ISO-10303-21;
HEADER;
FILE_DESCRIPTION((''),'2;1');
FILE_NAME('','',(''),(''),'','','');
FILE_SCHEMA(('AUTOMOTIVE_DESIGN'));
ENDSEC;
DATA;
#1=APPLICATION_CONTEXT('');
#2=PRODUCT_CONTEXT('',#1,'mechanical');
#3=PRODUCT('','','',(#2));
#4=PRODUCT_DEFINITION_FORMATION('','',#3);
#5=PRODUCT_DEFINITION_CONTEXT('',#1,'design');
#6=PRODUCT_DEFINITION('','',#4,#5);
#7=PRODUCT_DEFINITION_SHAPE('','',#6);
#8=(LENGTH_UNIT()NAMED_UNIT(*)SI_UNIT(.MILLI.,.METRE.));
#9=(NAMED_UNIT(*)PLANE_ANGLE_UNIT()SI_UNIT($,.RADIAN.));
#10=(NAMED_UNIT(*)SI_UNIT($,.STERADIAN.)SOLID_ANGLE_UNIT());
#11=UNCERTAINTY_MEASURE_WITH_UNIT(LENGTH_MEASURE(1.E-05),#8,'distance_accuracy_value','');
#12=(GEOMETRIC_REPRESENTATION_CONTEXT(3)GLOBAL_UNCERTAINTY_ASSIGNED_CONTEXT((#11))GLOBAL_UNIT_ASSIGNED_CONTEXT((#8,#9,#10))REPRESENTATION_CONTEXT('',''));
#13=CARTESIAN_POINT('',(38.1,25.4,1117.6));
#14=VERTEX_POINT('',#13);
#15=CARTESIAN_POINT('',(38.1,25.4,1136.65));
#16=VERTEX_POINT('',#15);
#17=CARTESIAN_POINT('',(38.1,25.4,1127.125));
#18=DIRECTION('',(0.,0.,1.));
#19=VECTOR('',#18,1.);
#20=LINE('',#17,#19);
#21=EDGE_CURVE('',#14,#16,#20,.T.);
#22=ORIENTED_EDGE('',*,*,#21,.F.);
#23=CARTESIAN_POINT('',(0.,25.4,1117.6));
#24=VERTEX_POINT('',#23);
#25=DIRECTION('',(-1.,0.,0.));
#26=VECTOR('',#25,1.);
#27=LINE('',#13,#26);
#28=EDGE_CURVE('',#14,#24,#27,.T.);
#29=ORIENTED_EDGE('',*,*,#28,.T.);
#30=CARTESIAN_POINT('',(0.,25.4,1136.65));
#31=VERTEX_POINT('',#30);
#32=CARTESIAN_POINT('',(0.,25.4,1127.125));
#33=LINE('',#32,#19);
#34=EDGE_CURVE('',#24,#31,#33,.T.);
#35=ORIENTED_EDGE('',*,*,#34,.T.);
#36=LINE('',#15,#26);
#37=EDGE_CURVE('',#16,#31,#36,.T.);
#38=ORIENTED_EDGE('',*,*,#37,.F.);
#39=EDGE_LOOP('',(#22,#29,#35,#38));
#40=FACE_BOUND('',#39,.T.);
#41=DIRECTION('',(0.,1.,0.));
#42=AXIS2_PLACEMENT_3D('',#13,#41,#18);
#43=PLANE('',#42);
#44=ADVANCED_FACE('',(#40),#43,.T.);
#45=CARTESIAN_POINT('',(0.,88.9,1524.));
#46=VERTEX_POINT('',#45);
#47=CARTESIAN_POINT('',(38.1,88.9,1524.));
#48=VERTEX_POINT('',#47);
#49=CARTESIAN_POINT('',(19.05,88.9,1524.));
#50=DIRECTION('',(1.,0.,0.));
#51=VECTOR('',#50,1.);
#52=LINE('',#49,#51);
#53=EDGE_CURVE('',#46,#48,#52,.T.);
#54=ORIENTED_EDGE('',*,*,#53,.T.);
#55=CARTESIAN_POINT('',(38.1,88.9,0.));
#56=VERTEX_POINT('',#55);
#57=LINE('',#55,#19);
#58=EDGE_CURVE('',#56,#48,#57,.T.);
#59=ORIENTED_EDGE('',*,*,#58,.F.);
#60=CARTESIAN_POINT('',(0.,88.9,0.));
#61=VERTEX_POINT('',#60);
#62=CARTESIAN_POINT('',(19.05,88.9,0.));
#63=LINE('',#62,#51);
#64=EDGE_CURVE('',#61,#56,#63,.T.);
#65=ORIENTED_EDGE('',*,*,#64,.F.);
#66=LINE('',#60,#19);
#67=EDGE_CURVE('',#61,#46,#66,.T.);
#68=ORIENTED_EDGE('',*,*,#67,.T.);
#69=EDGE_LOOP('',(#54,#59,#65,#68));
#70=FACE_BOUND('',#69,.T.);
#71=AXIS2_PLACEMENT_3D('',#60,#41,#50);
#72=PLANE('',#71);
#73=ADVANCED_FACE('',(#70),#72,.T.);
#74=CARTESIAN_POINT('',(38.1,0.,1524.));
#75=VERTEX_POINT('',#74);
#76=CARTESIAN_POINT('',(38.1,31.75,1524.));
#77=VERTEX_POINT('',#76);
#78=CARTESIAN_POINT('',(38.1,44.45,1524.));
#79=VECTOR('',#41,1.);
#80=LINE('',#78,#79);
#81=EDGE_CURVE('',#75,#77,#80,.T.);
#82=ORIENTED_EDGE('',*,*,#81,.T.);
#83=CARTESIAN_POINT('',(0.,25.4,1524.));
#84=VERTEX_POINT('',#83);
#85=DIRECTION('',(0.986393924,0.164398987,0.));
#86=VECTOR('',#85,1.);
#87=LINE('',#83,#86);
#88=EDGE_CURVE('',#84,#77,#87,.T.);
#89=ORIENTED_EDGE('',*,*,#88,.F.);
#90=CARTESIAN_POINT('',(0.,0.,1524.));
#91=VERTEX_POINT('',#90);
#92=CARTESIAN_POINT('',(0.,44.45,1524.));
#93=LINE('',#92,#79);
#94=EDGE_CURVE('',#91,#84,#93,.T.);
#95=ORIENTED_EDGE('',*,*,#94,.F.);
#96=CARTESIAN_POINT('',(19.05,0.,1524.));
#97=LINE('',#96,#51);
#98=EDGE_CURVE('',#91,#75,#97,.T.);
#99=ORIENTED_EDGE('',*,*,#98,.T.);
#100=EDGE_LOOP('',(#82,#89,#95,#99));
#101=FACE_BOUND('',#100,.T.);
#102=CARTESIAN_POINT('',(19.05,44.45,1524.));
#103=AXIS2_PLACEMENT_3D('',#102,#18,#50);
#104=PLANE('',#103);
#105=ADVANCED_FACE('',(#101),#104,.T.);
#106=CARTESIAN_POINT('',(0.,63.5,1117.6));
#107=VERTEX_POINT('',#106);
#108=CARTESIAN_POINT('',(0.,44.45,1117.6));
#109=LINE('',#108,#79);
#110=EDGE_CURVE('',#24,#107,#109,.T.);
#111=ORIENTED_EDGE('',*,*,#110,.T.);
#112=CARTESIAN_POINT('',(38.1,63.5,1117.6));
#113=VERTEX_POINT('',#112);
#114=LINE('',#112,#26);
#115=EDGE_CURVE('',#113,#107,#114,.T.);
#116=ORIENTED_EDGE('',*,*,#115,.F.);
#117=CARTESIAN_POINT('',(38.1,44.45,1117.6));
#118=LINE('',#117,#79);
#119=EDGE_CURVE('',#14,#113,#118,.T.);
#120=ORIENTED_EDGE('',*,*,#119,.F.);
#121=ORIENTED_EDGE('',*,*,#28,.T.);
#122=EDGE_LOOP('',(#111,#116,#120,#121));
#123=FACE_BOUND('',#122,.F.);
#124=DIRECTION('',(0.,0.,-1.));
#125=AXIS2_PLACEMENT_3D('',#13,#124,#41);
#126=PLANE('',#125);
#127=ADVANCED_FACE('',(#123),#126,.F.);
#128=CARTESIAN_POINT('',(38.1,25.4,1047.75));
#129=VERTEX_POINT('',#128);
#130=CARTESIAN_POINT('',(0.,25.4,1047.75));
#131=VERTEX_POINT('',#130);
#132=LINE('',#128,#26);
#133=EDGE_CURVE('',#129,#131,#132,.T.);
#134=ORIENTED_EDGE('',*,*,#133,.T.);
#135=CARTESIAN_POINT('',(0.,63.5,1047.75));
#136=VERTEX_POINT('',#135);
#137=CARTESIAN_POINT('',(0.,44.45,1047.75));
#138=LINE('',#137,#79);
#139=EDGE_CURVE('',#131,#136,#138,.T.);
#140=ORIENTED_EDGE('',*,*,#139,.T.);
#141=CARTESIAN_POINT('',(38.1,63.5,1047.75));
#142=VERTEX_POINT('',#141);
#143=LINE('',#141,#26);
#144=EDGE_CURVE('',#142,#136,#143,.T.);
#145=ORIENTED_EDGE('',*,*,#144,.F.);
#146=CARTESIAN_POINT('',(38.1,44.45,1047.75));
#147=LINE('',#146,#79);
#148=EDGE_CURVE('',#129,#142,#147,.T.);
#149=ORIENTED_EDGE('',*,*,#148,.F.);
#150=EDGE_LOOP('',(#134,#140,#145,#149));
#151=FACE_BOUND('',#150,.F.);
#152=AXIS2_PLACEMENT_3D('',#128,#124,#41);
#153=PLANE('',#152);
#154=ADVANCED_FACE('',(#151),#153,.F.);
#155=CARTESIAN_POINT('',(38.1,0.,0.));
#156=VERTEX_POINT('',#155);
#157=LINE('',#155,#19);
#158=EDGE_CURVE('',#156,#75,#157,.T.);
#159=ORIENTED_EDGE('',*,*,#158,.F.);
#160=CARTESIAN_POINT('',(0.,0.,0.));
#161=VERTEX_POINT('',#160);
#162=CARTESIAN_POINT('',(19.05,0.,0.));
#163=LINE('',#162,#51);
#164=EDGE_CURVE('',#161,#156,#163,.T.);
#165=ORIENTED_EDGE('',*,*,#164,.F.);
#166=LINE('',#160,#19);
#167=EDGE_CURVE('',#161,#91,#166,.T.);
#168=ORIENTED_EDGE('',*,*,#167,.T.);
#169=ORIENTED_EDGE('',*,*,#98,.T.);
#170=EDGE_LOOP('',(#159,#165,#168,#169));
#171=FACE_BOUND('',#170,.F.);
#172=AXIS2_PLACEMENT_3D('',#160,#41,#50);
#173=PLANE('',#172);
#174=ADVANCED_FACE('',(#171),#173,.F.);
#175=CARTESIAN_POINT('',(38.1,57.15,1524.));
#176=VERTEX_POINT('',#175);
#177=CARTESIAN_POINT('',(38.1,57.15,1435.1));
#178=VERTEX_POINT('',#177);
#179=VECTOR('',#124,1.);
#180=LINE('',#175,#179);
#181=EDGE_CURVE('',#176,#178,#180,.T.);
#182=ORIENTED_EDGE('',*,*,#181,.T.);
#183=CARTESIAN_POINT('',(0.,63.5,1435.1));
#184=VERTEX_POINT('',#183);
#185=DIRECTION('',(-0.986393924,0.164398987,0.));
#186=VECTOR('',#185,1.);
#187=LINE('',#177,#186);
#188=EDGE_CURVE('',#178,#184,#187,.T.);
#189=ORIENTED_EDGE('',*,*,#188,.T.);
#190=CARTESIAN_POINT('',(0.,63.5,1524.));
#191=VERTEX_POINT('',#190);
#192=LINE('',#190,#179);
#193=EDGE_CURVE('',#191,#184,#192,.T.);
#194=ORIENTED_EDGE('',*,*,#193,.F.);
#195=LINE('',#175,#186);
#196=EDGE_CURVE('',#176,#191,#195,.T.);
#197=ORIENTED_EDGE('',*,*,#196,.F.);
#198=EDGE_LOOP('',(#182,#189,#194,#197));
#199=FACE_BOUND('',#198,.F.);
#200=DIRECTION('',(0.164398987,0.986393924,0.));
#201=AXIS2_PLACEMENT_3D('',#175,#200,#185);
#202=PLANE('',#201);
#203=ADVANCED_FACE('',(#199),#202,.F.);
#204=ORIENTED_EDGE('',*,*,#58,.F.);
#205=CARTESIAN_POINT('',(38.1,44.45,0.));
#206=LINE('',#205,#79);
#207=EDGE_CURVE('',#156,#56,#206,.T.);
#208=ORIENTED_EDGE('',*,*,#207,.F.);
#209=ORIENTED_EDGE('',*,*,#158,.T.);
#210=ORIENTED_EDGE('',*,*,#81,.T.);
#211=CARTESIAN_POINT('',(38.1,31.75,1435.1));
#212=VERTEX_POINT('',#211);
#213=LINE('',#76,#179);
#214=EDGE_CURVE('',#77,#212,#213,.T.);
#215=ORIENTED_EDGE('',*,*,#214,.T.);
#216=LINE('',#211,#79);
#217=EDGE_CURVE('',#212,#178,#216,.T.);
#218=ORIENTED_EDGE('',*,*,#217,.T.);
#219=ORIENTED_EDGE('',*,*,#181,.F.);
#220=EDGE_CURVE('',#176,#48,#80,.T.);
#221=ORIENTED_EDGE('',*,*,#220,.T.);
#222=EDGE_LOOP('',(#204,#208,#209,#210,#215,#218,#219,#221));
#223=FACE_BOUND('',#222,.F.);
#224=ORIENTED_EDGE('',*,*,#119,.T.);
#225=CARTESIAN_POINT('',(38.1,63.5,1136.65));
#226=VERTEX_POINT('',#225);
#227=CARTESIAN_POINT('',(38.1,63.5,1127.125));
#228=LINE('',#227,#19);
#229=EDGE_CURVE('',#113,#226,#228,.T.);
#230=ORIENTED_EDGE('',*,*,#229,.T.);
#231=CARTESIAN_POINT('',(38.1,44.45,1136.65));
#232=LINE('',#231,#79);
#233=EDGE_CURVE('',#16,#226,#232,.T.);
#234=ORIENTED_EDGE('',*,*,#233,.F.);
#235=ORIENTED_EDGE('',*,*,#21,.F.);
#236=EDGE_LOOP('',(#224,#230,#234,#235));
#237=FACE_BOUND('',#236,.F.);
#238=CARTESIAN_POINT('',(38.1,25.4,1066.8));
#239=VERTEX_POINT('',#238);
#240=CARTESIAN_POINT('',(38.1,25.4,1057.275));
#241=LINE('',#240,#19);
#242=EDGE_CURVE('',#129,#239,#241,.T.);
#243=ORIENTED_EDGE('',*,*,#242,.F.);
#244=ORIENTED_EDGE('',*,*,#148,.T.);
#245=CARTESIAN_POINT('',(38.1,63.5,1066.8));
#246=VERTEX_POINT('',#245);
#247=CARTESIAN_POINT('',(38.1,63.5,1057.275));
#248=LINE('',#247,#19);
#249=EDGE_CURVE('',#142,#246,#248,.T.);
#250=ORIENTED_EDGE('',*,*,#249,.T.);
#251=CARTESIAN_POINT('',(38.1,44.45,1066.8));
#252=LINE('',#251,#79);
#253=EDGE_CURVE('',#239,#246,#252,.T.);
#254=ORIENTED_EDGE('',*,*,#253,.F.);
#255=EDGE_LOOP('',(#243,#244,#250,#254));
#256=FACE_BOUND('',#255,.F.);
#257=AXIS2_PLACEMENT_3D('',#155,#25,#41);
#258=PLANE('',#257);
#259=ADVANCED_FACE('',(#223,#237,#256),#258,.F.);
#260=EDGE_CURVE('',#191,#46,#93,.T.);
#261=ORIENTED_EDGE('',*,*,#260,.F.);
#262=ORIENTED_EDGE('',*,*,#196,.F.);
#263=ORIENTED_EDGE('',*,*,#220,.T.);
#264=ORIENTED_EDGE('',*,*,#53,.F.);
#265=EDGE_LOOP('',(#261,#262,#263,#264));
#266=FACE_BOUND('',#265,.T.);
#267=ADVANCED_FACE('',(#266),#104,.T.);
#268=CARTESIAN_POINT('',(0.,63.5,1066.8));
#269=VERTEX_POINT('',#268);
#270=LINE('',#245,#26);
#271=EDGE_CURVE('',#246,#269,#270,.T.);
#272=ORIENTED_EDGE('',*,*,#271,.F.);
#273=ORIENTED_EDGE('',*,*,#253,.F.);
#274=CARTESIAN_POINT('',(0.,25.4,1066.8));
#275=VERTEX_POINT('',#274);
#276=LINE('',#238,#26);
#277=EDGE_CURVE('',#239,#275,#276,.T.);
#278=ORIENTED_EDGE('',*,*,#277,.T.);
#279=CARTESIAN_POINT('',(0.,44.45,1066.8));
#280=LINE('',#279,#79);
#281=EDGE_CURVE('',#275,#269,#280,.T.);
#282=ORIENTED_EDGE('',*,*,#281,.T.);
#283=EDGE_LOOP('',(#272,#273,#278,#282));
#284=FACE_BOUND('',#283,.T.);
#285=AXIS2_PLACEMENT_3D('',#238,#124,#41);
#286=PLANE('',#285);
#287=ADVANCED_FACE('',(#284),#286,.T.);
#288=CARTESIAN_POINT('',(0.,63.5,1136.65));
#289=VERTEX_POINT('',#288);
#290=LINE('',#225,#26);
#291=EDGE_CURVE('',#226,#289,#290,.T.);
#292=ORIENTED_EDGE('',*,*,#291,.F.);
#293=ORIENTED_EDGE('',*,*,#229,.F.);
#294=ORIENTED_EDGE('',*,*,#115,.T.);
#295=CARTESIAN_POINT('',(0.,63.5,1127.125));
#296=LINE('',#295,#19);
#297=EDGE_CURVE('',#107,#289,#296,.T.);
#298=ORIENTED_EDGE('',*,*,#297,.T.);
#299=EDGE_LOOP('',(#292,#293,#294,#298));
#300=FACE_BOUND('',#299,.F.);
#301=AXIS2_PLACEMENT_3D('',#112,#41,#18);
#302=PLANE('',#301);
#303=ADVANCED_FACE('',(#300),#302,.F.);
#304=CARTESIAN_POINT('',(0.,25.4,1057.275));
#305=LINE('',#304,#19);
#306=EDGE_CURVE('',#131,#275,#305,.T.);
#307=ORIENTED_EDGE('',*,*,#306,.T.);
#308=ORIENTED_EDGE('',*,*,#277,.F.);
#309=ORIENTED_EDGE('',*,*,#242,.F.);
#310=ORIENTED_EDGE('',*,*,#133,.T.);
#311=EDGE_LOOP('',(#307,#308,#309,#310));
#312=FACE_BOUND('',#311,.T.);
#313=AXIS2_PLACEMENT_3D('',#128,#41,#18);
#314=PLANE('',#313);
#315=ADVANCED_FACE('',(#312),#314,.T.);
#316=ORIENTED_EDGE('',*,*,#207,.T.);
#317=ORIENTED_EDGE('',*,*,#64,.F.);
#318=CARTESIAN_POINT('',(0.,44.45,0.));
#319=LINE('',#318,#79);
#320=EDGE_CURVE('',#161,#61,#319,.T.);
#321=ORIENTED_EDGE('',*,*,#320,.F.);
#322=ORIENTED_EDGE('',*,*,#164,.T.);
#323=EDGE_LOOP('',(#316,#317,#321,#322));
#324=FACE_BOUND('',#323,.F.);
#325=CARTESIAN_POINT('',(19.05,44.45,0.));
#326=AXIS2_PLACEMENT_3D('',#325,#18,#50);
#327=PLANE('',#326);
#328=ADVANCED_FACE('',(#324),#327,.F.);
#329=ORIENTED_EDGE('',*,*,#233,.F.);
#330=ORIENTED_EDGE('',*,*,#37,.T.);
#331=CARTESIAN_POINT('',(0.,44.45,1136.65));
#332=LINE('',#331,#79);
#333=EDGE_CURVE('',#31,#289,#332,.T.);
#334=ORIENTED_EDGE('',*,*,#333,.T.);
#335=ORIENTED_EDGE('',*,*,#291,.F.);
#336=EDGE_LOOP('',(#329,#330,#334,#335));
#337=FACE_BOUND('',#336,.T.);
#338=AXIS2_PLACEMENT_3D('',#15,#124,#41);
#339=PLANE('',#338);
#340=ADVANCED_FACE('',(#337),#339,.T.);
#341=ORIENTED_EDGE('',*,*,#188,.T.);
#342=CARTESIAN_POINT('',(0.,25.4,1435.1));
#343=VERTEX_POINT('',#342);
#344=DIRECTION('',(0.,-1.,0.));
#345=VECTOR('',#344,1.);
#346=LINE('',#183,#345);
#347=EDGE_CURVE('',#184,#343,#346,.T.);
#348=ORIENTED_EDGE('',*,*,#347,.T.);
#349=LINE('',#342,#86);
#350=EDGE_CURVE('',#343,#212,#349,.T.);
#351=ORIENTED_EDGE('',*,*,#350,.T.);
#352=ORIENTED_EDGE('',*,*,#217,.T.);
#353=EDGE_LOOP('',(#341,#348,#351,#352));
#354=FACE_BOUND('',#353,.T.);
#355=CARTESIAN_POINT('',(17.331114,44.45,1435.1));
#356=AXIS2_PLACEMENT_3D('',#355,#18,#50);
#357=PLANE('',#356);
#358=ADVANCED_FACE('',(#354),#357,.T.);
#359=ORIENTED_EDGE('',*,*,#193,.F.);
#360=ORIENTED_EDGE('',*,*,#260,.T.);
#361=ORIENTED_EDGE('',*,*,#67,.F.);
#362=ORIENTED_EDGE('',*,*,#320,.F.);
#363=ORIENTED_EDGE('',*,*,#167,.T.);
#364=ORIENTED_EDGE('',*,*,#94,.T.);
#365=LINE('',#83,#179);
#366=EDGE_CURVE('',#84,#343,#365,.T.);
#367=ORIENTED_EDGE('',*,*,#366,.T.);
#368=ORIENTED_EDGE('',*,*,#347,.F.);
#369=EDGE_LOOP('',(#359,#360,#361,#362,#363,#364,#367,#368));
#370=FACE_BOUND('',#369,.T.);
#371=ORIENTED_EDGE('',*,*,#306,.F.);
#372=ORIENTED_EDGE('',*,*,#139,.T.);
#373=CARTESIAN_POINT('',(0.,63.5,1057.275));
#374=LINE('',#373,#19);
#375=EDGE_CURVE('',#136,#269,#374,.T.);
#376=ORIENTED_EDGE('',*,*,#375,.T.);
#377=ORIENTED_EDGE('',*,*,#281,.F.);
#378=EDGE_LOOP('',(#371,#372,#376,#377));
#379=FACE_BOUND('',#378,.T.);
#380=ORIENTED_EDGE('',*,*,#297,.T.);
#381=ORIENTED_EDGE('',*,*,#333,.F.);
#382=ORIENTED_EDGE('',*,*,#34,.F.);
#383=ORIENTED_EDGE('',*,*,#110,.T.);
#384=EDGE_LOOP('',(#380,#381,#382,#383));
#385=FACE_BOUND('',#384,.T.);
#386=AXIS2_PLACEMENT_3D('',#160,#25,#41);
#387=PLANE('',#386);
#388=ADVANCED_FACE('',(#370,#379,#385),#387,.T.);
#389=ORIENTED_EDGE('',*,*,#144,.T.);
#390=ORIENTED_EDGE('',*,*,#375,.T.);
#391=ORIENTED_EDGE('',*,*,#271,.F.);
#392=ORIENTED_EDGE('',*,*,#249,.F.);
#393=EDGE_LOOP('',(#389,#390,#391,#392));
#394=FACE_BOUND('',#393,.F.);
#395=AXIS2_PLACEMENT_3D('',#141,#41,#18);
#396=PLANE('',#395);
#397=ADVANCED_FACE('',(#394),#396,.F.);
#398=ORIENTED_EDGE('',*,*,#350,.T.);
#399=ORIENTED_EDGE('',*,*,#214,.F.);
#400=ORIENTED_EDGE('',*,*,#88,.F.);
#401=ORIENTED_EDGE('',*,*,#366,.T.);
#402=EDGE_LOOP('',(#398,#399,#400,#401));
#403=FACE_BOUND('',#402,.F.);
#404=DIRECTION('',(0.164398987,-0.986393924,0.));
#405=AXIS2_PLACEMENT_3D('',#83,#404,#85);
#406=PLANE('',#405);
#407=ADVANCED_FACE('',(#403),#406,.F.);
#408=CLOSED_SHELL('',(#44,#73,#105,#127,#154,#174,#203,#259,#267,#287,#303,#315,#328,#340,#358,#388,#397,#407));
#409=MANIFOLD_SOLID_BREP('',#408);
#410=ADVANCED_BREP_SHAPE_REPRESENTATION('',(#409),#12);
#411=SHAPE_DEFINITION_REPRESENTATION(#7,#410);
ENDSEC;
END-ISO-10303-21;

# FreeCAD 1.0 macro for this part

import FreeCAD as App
import Part
import Sketcher
Q = App.Units.Quantity

doc = App.newDocument("Part")
body = doc.addObject("PartDesign::Body", "Body")

sketch1 = doc.addObject("Sketcher::SketchObject", "Sketch")
body.addObject(sketch1)
sketch1.AttachmentSupport = (doc.XY_Plane, [""])
sketch1.MapMode = "FlatFace"
sketch1.addGeometry([
    Part.LineSegment(App.Vector(0, 89, 0), App.Vector(0, 0, 0)),
    Part.LineSegment(App.Vector(0, 0, 0), App.Vector(38, 0, 0)),
    Part.LineSegment(App.Vector(38, 0, 0), App.Vector(38, 89, 0)),
    Part.LineSegment(App.Vector(38, 89, 0), App.Vector(0, 89, 0)),
], False)
sketch1.addConstraint([
    Sketcher.Constraint("Coincident", 0, 2, 1, 1),
    Sketcher.Constraint("Coincident", 1, 2, 2, 1),
    Sketcher.Constraint("Coincident", 2, 2, 3, 1),
    Sketcher.Constraint("Coincident", 3, 2, 0, 1),
    Sketcher.Constraint("Vertical", 0),
    Sketcher.Constraint("Horizontal", 1),
    Sketcher.Constraint("Vertical", 2),
    Sketcher.Constraint("Horizontal", 3),
    Sketcher.Constraint("Coincident", 0, 2, -1, 1),
    Sketcher.Constraint("DistanceX", 1, 1, 1, 2, Q("1.5 in")),
    Sketcher.Constraint("DistanceY", 0, 2, 0, 1, Q("3.5 in")),
])
pad1 = doc.addObject("PartDesign::Pad", "Pad")
body.addObject(pad1)
pad1.Profile = sketch1
pad1.Length = Q("60 in")

sketch2 = doc.addObject("Sketcher::SketchObject", "Sketch001")
body.addObject(sketch2)
sketch2.AttachmentSupport = (doc.YZ_Plane, [""])
sketch2.MapMode = "FlatFace"
sketch2.AttachmentOffset = App.Placement(App.Vector(0, 0, 1.5 * 25.4), App.Rotation())
sketch2.addGeometry([
    Part.LineSegment(App.Vector(25, 1137, 0), App.Vector(25, 1118, 0)),
    Part.LineSegment(App.Vector(25, 1118, 0), App.Vector(64, 1118, 0)),
    Part.LineSegment(App.Vector(64, 1118, 0), App.Vector(64, 1137, 0)),
    Part.LineSegment(App.Vector(64, 1137, 0), App.Vector(25, 1137, 0)),
    Part.LineSegment(App.Vector(25, 1067, 0), App.Vector(25, 1048, 0)),
    Part.LineSegment(App.Vector(25, 1048, 0), App.Vector(64, 1048, 0)),
    Part.LineSegment(App.Vector(64, 1048, 0), App.Vector(64, 1067, 0)),
    Part.LineSegment(App.Vector(64, 1067, 0), App.Vector(25, 1067, 0)),
], False)
sketch2.addConstraint([
    Sketcher.Constraint("Coincident", 0, 2, 1, 1),
    Sketcher.Constraint("Coincident", 1, 2, 2, 1),
    Sketcher.Constraint("Coincident", 2, 2, 3, 1),
    Sketcher.Constraint("Coincident", 3, 2, 0, 1),
    Sketcher.Constraint("Coincident", 4, 2, 5, 1),
    Sketcher.Constraint("Coincident", 5, 2, 6, 1),
    Sketcher.Constraint("Coincident", 6, 2, 7, 1),
    Sketcher.Constraint("Coincident", 7, 2, 4, 1),
    Sketcher.Constraint("Vertical", 0),
    Sketcher.Constraint("Horizontal", 1),
    Sketcher.Constraint("Vertical", 2),
    Sketcher.Constraint("Horizontal", 3),
    Sketcher.Constraint("Vertical", 4),
    Sketcher.Constraint("Horizontal", 5),
    Sketcher.Constraint("Vertical", 6),
    Sketcher.Constraint("Horizontal", 7),
    Sketcher.Constraint("Vertical", 3, 2, 4, 2),
    Sketcher.Constraint("Vertical", 2, 2, 5, 2),
    Sketcher.Constraint("Equal", 2, 4),
    Sketcher.Constraint("DistanceX", 1, 1, 1, 2, Q("1.5 in")),
    Sketcher.Constraint("DistanceX", -1, 1, 0, 2, Q("1 in")),
    Sketcher.Constraint("DistanceY", -1, 1, 0, 2, Q("44 in")),
    Sketcher.Constraint("DistanceY", -1, 1, 6, 2, Q("42 in")),
    Sketcher.Constraint("DistanceY", 0, 2, 0, 1, Q("0.75 in")),
])
pocket1 = doc.addObject("PartDesign::Pocket", "Pocket")
body.addObject(pocket1)
pocket1.Profile = sketch2
pocket1.Type = "ThroughAll"

sketch3 = doc.addObject("Sketcher::SketchObject", "Sketch002")
body.addObject(sketch3)
sketch3.AttachmentSupport = (doc.XY_Plane, [""])
sketch3.MapMode = "FlatFace"
sketch3.AttachmentOffset = App.Placement(App.Vector(0, 0, 60 * 25.4), App.Rotation())
sketch3.addGeometry([
    Part.LineSegment(App.Vector(0, 64, 0), App.Vector(0, 25, 0)),
    Part.LineSegment(App.Vector(0, 25, 0), App.Vector(38, 32, 0)),
    Part.LineSegment(App.Vector(38, 32, 0), App.Vector(38, 57, 0)),
    Part.LineSegment(App.Vector(38, 57, 0), App.Vector(0, 64, 0)),
], False)
sketch3.addConstraint([
    Sketcher.Constraint("Coincident", 0, 2, 1, 1),
    Sketcher.Constraint("Coincident", 1, 2, 2, 1),
    Sketcher.Constraint("Coincident", 2, 2, 3, 1),
    Sketcher.Constraint("Coincident", 3, 2, 0, 1),
    Sketcher.Constraint("Vertical", 0),
    Sketcher.Constraint("Vertical", 2),
    Sketcher.Constraint("PointOnObject", 0, 2, -2),
    Sketcher.Constraint("Equal", 1, 3),
    Sketcher.Constraint("DistanceY", 2, 1, 2, 2, Q("1 in")),
    Sketcher.Constraint("DistanceY", 0, 2, 0, 1, Q("1.5 in")),
    Sketcher.Constraint("DistanceY", -1, 1, 0, 2, Q("1 in")),
    Sketcher.Constraint("DistanceX", -1, 1, 1, 2, Q("1.5 in")),
])
pocket2 = doc.addObject("PartDesign::Pocket", "Pocket001")
body.addObject(pocket2)
pocket2.Profile = sketch3
pocket2.Length = Q("3.5 in")

doc.recompute()
